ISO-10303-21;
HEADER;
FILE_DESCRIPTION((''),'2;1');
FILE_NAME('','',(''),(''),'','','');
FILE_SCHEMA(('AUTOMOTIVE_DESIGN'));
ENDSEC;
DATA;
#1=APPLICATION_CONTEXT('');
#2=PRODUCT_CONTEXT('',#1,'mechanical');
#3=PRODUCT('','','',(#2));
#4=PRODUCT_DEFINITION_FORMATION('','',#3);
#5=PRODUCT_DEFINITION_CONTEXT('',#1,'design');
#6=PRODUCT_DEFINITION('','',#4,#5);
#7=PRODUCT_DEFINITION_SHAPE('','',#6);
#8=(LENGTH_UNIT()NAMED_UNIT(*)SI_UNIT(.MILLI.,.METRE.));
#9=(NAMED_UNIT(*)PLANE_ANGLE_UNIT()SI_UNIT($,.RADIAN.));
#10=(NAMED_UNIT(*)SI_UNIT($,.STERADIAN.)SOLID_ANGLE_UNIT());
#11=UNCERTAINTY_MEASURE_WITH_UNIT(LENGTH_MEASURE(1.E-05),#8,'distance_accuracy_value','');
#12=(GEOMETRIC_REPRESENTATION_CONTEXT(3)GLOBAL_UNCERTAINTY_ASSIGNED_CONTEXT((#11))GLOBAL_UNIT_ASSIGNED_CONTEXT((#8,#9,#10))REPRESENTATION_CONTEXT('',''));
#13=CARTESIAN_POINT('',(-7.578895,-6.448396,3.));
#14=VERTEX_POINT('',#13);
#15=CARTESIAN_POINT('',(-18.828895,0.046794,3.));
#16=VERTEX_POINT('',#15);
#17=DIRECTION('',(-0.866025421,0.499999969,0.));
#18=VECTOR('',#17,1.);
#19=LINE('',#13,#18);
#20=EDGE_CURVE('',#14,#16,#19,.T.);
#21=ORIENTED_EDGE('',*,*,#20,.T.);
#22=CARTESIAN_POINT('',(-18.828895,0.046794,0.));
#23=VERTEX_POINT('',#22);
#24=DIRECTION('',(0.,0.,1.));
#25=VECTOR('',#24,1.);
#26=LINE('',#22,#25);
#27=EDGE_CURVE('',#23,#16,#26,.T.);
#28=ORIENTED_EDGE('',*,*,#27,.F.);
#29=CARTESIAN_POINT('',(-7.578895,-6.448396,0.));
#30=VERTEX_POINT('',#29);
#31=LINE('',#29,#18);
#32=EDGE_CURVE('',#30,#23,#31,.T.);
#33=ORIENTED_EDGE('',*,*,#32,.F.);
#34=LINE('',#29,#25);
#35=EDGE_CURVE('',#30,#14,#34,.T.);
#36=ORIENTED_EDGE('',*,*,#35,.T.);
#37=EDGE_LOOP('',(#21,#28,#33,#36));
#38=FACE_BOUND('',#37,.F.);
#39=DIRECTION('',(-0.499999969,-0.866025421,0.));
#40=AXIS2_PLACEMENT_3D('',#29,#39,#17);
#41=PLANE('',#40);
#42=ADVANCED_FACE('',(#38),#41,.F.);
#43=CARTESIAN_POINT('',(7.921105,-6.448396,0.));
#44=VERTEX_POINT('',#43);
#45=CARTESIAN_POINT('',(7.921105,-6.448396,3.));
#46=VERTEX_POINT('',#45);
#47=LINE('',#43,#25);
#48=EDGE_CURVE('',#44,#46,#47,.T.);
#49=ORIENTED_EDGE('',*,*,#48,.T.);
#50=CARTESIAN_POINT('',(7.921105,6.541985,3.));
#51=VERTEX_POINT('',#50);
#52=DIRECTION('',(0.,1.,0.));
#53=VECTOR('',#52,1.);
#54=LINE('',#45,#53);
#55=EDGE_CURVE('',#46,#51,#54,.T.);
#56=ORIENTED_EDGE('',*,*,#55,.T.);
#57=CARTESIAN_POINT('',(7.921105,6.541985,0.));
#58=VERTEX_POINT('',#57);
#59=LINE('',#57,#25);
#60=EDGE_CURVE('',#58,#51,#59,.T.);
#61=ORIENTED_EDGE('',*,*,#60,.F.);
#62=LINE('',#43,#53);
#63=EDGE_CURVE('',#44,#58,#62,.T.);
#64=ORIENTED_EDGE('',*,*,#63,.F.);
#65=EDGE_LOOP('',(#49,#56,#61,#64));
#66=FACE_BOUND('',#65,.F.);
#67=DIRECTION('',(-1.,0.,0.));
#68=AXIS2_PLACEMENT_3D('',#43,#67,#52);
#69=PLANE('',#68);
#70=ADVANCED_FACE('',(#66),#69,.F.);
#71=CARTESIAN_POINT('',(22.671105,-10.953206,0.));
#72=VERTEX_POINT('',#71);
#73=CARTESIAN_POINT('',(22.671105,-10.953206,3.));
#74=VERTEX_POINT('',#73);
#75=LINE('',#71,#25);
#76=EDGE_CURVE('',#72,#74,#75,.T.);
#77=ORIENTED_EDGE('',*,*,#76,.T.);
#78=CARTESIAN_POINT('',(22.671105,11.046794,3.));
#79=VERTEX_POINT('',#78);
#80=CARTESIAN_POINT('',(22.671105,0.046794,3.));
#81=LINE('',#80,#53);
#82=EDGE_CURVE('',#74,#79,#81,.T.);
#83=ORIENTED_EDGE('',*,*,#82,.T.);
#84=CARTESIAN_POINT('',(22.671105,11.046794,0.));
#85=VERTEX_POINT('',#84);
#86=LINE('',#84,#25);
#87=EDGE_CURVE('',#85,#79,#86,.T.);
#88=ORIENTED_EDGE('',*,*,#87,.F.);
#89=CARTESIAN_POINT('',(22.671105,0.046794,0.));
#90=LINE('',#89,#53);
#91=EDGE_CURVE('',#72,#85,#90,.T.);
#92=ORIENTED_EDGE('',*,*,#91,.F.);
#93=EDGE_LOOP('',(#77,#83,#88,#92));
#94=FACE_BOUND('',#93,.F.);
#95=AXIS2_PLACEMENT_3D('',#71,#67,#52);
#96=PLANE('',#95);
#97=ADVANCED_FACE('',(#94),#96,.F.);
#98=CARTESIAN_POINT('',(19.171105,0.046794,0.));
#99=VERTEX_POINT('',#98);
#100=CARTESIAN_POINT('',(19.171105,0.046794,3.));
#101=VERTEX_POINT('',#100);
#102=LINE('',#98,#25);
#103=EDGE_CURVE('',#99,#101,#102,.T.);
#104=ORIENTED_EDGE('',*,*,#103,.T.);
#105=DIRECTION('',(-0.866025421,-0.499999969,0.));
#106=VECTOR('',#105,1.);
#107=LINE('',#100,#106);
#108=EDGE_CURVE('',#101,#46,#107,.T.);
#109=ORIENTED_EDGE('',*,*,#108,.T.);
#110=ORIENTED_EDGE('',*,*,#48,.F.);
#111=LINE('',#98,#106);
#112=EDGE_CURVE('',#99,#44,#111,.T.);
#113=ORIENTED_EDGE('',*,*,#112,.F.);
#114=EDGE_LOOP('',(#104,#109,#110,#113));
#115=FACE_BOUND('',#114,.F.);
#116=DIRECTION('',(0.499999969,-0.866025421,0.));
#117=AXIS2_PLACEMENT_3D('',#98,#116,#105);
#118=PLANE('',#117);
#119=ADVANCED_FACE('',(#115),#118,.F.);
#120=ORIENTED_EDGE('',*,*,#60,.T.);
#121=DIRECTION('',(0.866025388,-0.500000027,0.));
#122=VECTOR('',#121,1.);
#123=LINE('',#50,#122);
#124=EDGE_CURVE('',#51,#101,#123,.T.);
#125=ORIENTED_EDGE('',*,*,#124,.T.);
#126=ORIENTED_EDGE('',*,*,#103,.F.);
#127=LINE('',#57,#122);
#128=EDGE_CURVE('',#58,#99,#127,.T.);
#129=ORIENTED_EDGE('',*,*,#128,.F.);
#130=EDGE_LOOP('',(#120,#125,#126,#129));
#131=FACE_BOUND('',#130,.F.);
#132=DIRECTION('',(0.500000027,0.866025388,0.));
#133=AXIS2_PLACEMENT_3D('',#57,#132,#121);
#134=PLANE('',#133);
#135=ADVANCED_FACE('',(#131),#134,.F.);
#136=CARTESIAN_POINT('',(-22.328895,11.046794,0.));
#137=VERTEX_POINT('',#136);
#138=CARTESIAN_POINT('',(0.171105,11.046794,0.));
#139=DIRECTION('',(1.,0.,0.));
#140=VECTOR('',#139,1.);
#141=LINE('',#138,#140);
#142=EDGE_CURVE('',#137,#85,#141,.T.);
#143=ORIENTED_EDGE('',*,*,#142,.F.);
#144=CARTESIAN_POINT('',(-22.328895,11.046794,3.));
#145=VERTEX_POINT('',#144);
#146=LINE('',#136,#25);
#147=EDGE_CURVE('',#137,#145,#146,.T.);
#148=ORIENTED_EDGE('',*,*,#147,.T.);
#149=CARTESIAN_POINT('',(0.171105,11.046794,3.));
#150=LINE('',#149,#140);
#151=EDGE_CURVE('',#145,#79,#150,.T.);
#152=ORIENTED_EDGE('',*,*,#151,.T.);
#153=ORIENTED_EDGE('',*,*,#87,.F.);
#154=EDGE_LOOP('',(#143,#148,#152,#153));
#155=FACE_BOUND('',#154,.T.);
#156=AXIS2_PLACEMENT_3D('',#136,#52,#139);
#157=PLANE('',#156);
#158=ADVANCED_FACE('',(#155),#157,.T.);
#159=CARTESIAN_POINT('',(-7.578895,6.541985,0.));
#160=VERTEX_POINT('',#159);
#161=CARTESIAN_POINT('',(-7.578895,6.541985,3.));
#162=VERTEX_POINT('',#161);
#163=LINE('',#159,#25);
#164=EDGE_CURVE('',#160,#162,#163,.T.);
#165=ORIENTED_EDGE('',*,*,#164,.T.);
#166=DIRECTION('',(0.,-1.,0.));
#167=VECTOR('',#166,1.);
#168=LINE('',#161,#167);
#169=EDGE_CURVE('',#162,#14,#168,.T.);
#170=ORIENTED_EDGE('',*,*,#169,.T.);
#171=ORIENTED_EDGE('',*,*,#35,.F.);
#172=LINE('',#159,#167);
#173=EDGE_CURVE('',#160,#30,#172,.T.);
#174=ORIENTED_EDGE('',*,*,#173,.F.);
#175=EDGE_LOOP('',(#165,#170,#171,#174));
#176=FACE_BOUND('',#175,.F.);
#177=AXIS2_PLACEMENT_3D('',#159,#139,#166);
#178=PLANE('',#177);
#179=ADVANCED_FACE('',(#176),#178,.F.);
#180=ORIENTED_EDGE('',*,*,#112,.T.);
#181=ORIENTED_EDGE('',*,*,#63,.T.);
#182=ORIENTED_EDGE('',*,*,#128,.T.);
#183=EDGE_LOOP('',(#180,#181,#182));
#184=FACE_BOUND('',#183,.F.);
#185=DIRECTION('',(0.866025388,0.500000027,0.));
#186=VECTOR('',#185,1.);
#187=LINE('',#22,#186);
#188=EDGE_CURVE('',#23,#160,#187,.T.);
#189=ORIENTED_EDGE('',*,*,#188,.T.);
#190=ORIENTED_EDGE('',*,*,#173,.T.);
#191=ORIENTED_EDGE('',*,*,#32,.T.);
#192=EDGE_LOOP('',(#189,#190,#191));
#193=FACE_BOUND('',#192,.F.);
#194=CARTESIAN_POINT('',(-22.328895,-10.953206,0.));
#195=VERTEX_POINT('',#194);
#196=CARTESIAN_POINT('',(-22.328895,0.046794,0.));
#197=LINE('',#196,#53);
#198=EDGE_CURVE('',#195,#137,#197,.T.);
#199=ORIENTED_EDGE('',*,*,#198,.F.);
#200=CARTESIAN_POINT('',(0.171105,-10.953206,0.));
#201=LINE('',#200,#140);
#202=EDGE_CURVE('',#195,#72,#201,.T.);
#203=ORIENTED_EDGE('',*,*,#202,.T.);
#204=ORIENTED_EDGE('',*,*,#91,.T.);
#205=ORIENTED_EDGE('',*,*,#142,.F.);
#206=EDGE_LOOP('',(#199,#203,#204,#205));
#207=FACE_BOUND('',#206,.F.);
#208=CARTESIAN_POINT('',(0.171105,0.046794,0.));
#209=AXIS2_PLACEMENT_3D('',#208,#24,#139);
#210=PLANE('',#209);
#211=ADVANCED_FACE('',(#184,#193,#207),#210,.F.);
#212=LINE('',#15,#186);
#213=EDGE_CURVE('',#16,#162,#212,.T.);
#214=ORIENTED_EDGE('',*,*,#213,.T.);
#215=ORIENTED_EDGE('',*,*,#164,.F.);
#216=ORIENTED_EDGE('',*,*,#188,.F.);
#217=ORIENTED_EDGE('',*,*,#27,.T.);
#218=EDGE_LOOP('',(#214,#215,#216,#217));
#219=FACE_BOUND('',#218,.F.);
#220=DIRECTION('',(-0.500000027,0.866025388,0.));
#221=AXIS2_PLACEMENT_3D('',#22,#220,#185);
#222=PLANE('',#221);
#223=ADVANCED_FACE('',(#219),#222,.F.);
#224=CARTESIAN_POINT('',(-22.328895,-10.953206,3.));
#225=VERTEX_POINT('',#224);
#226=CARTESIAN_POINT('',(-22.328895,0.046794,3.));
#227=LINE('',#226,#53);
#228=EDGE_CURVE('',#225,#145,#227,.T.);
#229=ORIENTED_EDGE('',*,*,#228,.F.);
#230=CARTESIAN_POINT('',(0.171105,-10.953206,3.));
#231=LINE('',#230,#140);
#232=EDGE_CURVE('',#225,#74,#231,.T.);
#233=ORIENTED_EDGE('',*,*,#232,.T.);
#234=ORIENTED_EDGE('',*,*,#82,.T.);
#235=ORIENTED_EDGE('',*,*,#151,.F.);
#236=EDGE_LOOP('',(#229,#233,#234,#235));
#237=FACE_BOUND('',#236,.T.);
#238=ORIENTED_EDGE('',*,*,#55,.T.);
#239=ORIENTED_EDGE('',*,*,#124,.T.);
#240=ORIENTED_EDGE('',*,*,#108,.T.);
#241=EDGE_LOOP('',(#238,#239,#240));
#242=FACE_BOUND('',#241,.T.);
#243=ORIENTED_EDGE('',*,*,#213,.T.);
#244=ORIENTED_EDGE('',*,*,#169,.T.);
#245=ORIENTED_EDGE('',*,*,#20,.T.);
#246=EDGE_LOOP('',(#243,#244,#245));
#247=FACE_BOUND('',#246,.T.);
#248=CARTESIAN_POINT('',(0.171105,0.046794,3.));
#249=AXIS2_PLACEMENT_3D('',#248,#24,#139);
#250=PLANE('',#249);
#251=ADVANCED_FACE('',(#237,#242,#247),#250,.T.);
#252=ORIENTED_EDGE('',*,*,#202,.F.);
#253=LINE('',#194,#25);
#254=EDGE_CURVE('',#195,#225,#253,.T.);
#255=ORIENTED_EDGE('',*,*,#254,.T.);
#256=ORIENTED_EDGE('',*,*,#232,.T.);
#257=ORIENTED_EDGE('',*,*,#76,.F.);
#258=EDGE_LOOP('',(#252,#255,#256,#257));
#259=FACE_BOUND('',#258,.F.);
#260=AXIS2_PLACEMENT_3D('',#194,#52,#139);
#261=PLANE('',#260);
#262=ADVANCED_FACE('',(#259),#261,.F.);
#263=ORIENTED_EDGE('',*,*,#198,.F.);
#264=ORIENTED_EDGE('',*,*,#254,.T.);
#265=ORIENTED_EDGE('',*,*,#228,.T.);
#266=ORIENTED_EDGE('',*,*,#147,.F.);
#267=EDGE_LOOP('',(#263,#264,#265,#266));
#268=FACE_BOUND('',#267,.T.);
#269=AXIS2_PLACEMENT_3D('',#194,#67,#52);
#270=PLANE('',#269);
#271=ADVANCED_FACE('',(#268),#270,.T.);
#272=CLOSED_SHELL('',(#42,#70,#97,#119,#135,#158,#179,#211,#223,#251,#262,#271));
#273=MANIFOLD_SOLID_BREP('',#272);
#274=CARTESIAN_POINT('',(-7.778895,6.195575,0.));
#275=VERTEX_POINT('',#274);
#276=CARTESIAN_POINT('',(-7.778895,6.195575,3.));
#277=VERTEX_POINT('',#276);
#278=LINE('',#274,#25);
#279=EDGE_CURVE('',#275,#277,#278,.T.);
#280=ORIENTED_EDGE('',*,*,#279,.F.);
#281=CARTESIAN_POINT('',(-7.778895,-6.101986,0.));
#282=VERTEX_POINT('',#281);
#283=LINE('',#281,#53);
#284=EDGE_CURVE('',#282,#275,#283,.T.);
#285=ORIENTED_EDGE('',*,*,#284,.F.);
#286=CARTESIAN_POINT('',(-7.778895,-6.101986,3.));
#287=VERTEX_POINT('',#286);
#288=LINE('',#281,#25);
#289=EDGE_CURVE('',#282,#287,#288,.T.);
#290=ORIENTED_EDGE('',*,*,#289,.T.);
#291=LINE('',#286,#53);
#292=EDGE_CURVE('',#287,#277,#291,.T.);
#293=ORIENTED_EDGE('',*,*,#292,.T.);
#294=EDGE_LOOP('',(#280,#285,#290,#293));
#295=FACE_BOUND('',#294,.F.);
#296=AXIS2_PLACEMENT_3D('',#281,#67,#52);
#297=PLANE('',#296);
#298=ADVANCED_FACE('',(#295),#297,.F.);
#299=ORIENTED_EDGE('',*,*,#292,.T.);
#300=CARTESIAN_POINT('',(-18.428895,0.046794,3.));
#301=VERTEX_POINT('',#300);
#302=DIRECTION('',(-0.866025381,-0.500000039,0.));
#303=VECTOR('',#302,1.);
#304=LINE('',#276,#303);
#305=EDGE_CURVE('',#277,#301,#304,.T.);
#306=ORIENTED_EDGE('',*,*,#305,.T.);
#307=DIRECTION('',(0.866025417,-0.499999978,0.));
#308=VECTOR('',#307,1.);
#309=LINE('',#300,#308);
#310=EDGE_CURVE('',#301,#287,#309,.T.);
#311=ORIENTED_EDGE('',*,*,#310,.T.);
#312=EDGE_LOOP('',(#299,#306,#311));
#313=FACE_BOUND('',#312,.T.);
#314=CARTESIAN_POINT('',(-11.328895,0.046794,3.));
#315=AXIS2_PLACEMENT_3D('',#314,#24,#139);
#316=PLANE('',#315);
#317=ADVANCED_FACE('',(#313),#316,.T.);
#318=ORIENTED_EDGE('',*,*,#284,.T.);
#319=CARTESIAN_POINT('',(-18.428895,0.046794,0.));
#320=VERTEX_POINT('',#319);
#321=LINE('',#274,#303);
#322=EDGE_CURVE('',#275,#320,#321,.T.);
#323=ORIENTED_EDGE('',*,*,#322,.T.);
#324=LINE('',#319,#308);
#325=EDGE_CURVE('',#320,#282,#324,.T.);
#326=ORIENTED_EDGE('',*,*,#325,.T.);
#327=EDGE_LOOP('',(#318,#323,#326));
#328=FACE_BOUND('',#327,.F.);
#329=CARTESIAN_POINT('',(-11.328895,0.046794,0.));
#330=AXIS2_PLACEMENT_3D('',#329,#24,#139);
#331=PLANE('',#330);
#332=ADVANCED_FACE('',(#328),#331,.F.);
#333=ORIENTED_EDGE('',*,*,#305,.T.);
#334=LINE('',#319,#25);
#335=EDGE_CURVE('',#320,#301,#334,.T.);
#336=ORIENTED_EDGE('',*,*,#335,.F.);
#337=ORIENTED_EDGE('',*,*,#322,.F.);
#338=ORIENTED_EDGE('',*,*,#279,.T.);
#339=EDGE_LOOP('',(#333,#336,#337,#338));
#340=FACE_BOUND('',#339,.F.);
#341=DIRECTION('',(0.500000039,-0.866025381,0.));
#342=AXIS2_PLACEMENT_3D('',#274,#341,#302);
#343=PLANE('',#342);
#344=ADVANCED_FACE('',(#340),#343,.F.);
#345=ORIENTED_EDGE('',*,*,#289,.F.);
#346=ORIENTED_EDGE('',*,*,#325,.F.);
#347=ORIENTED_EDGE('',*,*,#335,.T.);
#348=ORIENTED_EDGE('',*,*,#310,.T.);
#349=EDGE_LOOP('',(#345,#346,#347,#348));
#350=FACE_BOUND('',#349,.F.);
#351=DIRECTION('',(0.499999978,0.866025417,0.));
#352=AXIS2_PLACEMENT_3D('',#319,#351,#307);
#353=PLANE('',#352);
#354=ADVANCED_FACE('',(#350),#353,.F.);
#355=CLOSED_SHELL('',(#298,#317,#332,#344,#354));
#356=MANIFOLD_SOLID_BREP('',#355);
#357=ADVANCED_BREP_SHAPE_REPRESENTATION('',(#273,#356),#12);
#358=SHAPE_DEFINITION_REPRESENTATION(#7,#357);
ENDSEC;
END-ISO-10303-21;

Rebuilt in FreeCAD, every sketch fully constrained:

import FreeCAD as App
import Part
import Sketcher

V = App.Vector
Q = App.Units.Quantity


def add_polygon(sketch, points):
    """Adds a closed chain of lines whose ends are joined by coincident constraints."""
    first, n = sketch.GeometryCount, len(points)
    for a, b in zip(points, points[1:] + points[:1]):
        sketch.addGeometry(Part.LineSegment(App.Vector(*a, 0), App.Vector(*b, 0)), False)
    for i in range(n):
        sketch.addConstraint(Sketcher.Constraint("Coincident", first + i, 2, first + (i + 1) % n, 1))

doc = App.newDocument("Part")
params = doc.addObject("Spreadsheet::Sheet", "Params")
for row, (alias, value) in enumerate([
    ("sketch1_width", "45 mm"),
    ("sketch1_height", "22 mm"),
    ("pad1_length", "3 mm"),
    ("pad2_length", "3 mm"),
], start=1):
    params.set(f"A{row}", alias)
    params.set(f"B{row}", "=" + value)
    params.setAlias(f"B{row}", alias)

body = doc.addObject("PartDesign::Body", "Body")

# Sketch on XY plane
sketch1 = body.newObject("Sketcher::SketchObject", "Sketch")
sketch1.AttachmentSupport = (doc.getObject("XY_Plane"), [""])
sketch1.MapMode = "FlatFace"
add_polygon(sketch1, [(-22, 11), (-22, -11), (23, -11), (23, 11)])  # lines 0-3
add_polygon(sketch1, [(-19, 0), (-8, 7), (-8, -6)])  # lines 4-6
add_polygon(sketch1, [(19, 0), (8, -6), (8, 7)])  # lines 7-9
sketch1.addConstraint(Sketcher.Constraint("Vertical", 0))
sketch1.addConstraint(Sketcher.Constraint("Horizontal", 1))
sketch1.addConstraint(Sketcher.Constraint("Vertical", 2))
sketch1.addConstraint(Sketcher.Constraint("Horizontal", 3))
sketch1.addConstraint(Sketcher.Constraint("Vertical", 5))
sketch1.addConstraint(Sketcher.Constraint("Vertical", 8))
sketch1.addConstraint(Sketcher.Constraint("Parallel", 4, 7))
sketch1.addConstraint(Sketcher.Constraint("Parallel", 6, 9))
sketch1.addConstraint(Sketcher.Constraint("Horizontal", 5, 2, 7, 2))
sketch1.addConstraint(Sketcher.Constraint("Horizontal", 4, 2, 8, 2))
sketch1.addConstraint(Sketcher.Constraint("Horizontal", 6, 2, 9, 2))
sketch1.addConstraint(Sketcher.Constraint("DistanceX", 1, 1, 1, 2, 45.0))
sketch1.addConstraint(Sketcher.Constraint("DistanceY", 0, 2, 0, 1, 22.0))
sketch1.addConstraint(Sketcher.Constraint("Angle", 4, Q("30.000002 deg")))
sketch1.addConstraint(Sketcher.Constraint("DistanceY", 0, 2, 6, 2, 11.0))
sketch1.addConstraint(Sketcher.Constraint("DistanceX", 0, 2, 6, 2, 3.5))
sketch1.addConstraint(Sketcher.Constraint("DistanceX", 5, 2, 7, 2, 15.5))
sketch1.addConstraint(Sketcher.Constraint("DistanceX", 9, 2, 1, 2, 3.5))
sketch1.addConstraint(Sketcher.Constraint("DistanceX", 0, 2, -1, 1, 22.328895))
sketch1.addConstraint(Sketcher.Constraint("DistanceY", 0, 2, -1, 1, 10.953206))
sketch1.setExpression("Constraints[21]", "Params.sketch1_width")
sketch1.setExpression("Constraints[22]", "Params.sketch1_height")
pad1 = body.newObject("PartDesign::Pad", "Pad")
pad1.Profile = sketch1
pad1.setExpression("Length", "Params.pad1_length")
body2 = doc.addObject("PartDesign::Body", "Body001")

# Sketch on XY plane
sketch2 = body2.newObject("Sketcher::SketchObject", "Sketch001")
sketch2.AttachmentSupport = (doc.getObject("XY_Plane001"), [""])
sketch2.MapMode = "FlatFace"
add_polygon(sketch2, [(-18, 0), (-8, -6), (-8, 6)])  # lines 0-2
sketch2.addConstraint(Sketcher.Constraint("Vertical", 1))
sketch2.addConstraint(Sketcher.Constraint("Equal", 0, 2))
sketch2.addConstraint(Sketcher.Constraint("Angle", 0, Q("-29.999999 deg")))
sketch2.addConstraint(Sketcher.Constraint("DistanceX", 2, 2, 0, 2, 10.65))
sketch2.addConstraint(Sketcher.Constraint("DistanceX", 0, 2, -1, 1, 7.778895))
sketch2.addConstraint(Sketcher.Constraint("DistanceY", 0, 2, -1, 1, 6.101986))
pad2 = body2.newObject("PartDesign::Pad", "Pad001")
pad2.Profile = sketch2
pad2.setExpression("Length", "Params.pad2_length")

doc.recompute()
